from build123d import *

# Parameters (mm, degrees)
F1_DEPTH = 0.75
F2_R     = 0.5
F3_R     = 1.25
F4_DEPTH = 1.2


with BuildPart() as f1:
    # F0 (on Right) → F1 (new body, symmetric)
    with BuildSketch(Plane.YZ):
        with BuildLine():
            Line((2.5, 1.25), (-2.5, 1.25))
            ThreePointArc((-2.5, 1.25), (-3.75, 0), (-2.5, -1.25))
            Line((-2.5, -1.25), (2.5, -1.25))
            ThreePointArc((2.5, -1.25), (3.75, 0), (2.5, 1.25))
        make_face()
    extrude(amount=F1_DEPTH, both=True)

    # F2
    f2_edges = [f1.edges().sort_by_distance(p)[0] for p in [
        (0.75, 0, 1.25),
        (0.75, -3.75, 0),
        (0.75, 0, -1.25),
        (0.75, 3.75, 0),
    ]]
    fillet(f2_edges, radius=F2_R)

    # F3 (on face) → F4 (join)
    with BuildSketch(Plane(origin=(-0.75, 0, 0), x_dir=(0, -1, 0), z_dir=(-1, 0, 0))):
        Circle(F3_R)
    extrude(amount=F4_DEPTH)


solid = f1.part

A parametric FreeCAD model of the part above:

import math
import FreeCAD as App
import Part
import Sketcher
Q = App.Units.Quantity


def edges_at(feature, points):
    """Names of the edges that pass closest to the given points."""
    edges = feature.Shape.Edges
    near = lambda p: min(range(len(edges)), key=lambda i: edges[i].distToShape(Part.Vertex(*p))[0])
    return sorted({f"Edge{near(p) + 1}" for p in points})

doc = App.newDocument("Part")
params = doc.addObject("Spreadsheet::Sheet", "Params")
for row, (alias, value) in enumerate([
    ("sketch1_width", "5 mm"),
    ("sketch1_radius", "1.25 mm"),
    ("pad1_length", "1.5 mm"),
    ("fillet_radius", "0.5 mm"),
    ("sketch2_diameter", "2.5 mm"),
    ("pad2_length", "1.2 mm"),
], start=1):
    params.set(f"A{row}", alias)
    params.set(f"B{row}", "=" + value)
    params.setAlias(f"B{row}", alias)

body = doc.addObject("PartDesign::Body", "Body")

# Sketch on YZ plane
sketch1 = doc.addObject("Sketcher::SketchObject", "Sketch")
body.addObject(sketch1)
sketch1.AttachmentSupport = (doc.YZ_Plane, [""])
sketch1.MapMode = "FlatFace"
sketch1.addGeometry(Part.LineSegment(App.Vector(2.5, 1.2, 0), App.Vector(-2.5, 1.2, 0)), False)
sketch1.addGeometry(Part.ArcOfCircle(Part.Circle(App.Vector(-2.5, 0, 0), App.Vector(0, 0, 1), 1.2), math.radians(90), math.radians(270)), False)
sketch1.addGeometry(Part.LineSegment(App.Vector(-2.5, -1.2, 0), App.Vector(2.5, -1.2, 0)), False)
sketch1.addGeometry(Part.ArcOfCircle(Part.Circle(App.Vector(2.5, 0, 0), App.Vector(0, 0, 1), 1.2), math.radians(-90), math.radians(90)), False)
sketch1.addConstraint(Sketcher.Constraint("Tangent", 0, 2, 1, 1))
sketch1.addConstraint(Sketcher.Constraint("Tangent", 1, 2, 2, 1))
sketch1.addConstraint(Sketcher.Constraint("Tangent", 2, 2, 3, 1))
sketch1.addConstraint(Sketcher.Constraint("Tangent", 3, 2, 0, 1))
sketch1.addConstraint(Sketcher.Constraint("Horizontal", 0))
sketch1.addConstraint(Sketcher.Constraint("Horizontal", 2))
sketch1.addConstraint(Sketcher.Constraint("Symmetric", 1, 3, 3, 3, -1, 1))
sketch1.addConstraint(Sketcher.Constraint("DistanceX", 0, 2, 0, 1, Q("5 mm")))
sketch1.addConstraint(Sketcher.Constraint("Radius", 1, Q("1.25 mm")))
sketch1.setExpression("Constraints[7]", "Params.sketch1_width")
sketch1.setExpression("Constraints[8]", "Params.sketch1_radius")
pad1 = doc.addObject("PartDesign::Pad", "Pad")
body.addObject(pad1)
pad1.Profile = sketch1
pad1.setExpression("Length", "Params.pad1_length")
pad1.Midplane = True
doc.recompute()

fillet = doc.addObject("PartDesign::Fillet", "Fillet")
body.addObject(fillet)
fillet.Base = (pad1, edges_at(pad1, [
    (0.75, 0, 1.25),
    (0.75, -3.75, 0),
    (0.75, 0, -1.25),
    (0.75, 3.75, 0),
]))
fillet.setExpression("Radius", "Params.fillet_radius")

# Sketch on YZ plane
sketch2 = doc.addObject("Sketcher::SketchObject", "Sketch001")
body.addObject(sketch2)
sketch2.AttachmentSupport = (doc.YZ_Plane, [""])
sketch2.MapMode = "FlatFace"
sketch2.AttachmentOffset = App.Placement(App.Vector(0, 0, -0.75), App.Rotation())
sketch2.addGeometry(Part.Circle(App.Vector(0, 0, 0), App.Vector(0, 0, 1), 1.2), False)
sketch2.addConstraint(Sketcher.Constraint("Coincident", 0, 3, -1, 1))
sketch2.addConstraint(Sketcher.Constraint("Diameter", 0, Q("2.5 mm")))
sketch2.setExpression("Constraints[1]", "Params.sketch2_diameter")
pad2 = doc.addObject("PartDesign::Pad", "Pad001")
body.addObject(pad2)
pad2.Profile = sketch2
pad2.setExpression("Length", "Params.pad2_length")
pad2.Reversed = True

doc.recompute()
